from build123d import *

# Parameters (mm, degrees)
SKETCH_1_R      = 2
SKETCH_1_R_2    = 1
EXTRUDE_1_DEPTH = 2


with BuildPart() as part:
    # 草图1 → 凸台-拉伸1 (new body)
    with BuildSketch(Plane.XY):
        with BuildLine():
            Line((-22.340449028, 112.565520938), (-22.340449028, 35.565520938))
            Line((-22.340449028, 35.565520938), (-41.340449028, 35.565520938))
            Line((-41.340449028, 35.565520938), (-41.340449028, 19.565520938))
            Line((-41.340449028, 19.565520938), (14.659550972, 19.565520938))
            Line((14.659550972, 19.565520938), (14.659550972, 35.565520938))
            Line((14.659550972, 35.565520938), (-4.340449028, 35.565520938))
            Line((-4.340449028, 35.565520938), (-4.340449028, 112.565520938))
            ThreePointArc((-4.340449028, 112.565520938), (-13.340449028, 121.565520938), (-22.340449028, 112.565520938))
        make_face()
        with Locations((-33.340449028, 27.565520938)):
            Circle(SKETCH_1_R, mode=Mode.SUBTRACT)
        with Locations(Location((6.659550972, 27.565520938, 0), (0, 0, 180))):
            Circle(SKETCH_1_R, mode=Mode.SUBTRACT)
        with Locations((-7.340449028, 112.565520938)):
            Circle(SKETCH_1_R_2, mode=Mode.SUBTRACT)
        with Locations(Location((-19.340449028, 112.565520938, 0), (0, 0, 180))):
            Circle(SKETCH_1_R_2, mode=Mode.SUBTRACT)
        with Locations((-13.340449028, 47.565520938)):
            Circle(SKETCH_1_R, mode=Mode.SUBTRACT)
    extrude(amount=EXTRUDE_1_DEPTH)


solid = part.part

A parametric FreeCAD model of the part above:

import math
import FreeCAD as App
import Part
import Sketcher

doc = App.newDocument("Part")
body = doc.addObject("PartDesign::Body", "Body")

# Sketch on XY plane
sketch1 = doc.addObject("Sketcher::SketchObject", "Sketch")
body.addObject(sketch1)
sketch1.AttachmentSupport = (doc.XY_Plane, [""])
sketch1.MapMode = "FlatFace"
sketch1.addGeometry([
    Part.LineSegment(App.Vector(-22.3, 112.6, 0), App.Vector(-22.3, 35.6, 0)),  # 0
    Part.LineSegment(App.Vector(-22.3, 35.6, 0), App.Vector(-41.3, 35.6, 0)),  # 1
    Part.LineSegment(App.Vector(-41.3, 35.6, 0), App.Vector(-41.3, 19.6, 0)),  # 2
    Part.LineSegment(App.Vector(-41.3, 19.6, 0), App.Vector(14.7, 19.6, 0)),  # 3
    Part.LineSegment(App.Vector(14.7, 19.6, 0), App.Vector(14.7, 35.6, 0)),  # 4
    Part.LineSegment(App.Vector(14.7, 35.6, 0), App.Vector(-4.3, 35.6, 0)),  # 5
    Part.LineSegment(App.Vector(-4.3, 35.6, 0), App.Vector(-4.3, 112.6, 0)),  # 6
    Part.ArcOfCircle(Part.Circle(App.Vector(-13.3, 112.6, 0), App.Vector(0, 0, 1), 9), math.radians(0), math.radians(180)),  # 7
    Part.Circle(App.Vector(-33.3, 27.6, 0), App.Vector(0, 0, 1), 2),  # 8
    Part.Circle(App.Vector(6.7, 27.6, 0), App.Vector(0, 0, 1), 2),  # 9
    Part.Circle(App.Vector(-13.3, 47.6, 0), App.Vector(0, 0, 1), 2),  # 10
    Part.Circle(App.Vector(-19.3, 112.6, 0), App.Vector(0, 0, 1), 1),  # 11
    Part.Circle(App.Vector(-7.3, 112.6, 0), App.Vector(0, 0, 1), 1),  # 12
], False)
sketch1.addConstraint([
    Sketcher.Constraint("Coincident", 0, 2, 1, 1),
    Sketcher.Constraint("Coincident", 1, 2, 2, 1),
    Sketcher.Constraint("Coincident", 2, 2, 3, 1),
    Sketcher.Constraint("Coincident", 3, 2, 4, 1),
    Sketcher.Constraint("Coincident", 4, 2, 5, 1),
    Sketcher.Constraint("Coincident", 5, 2, 6, 1),
    Sketcher.Constraint("Tangent", 6, 2, 7, 1),
    Sketcher.Constraint("Tangent", 7, 2, 0, 1),
    Sketcher.Constraint("Vertical", 0),
    Sketcher.Constraint("Horizontal", 1),
    Sketcher.Constraint("Vertical", 2),
    Sketcher.Constraint("Horizontal", 3),
    Sketcher.Constraint("Vertical", 4),
    Sketcher.Constraint("Horizontal", 5),
    Sketcher.Constraint("Vertical", 6),
    Sketcher.Constraint("Equal", 8, 9),
    Sketcher.Constraint("Equal", 9, 10),
    Sketcher.Constraint("Equal", 11, 12),
    Sketcher.Constraint("Horizontal", 8, 3, 9, 3),
    Sketcher.Constraint("Horizontal", 7, 3, 11, 3),
    Sketcher.Constraint("Horizontal", 11, 3, 12, 3),
    Sketcher.Constraint("Horizontal", 1, 2, 4, 2),
    Sketcher.Constraint("Vertical", 7, 3, 10, 3),
    Sketcher.Constraint("Equal", 1, 5),
    Sketcher.Constraint("Diameter", 8, 4.0),
    Sketcher.Constraint("Diameter", 11, 2.0),
    Sketcher.Constraint("Radius", 7, 9.0),
    Sketcher.Constraint("DistanceX", 1, 2, 1, 1, 19.0),
    Sketcher.Constraint("DistanceY", 0, 2, 0, 1, 77.0),
    Sketcher.Constraint("DistanceY", 2, 2, 2, 1, 16.0),
    Sketcher.Constraint("DistanceX", 8, 3, 7, 3, 20.0),
    Sketcher.Constraint("DistanceY", 8, 3, 7, 3, 85.0),
    Sketcher.Constraint("DistanceX", 8, 3, 9, 3, 40.0),
    Sketcher.Constraint("DistanceY", 8, 3, 10, 3, 20.0),
    Sketcher.Constraint("DistanceX", 11, 3, 7, 3, 6.0),
    Sketcher.Constraint("DistanceX", 7, 3, 12, 3, 6.0),
    Sketcher.Constraint("DistanceX", 7, 3, -1, 1, 13.340449),
    Sketcher.Constraint("DistanceY", -1, 1, 7, 3, 112.565521),
])
pad1 = doc.addObject("PartDesign::Pad", "Pad")
body.addObject(pad1)
pad1.Profile = sketch1
pad1.Length = 2

doc.recompute()
